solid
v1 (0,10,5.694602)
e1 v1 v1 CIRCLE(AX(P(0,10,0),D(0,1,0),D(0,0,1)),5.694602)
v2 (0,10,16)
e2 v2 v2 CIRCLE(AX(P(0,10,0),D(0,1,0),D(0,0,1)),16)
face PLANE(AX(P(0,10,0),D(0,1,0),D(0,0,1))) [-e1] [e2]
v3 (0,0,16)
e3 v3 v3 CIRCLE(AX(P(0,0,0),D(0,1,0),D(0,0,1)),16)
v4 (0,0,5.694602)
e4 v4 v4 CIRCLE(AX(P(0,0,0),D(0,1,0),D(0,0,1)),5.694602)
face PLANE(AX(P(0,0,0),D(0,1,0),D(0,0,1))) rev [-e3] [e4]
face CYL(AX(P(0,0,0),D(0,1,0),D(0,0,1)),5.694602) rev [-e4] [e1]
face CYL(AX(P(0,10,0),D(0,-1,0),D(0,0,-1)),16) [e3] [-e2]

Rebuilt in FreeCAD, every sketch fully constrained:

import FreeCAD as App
import Part
import Sketcher
Q = App.Units.Quantity

doc = App.newDocument("Part")
body = doc.addObject("PartDesign::Body", "Body")

sketch1 = doc.addObject("Sketcher::SketchObject", "Sketch")
body.addObject(sketch1)
sketch1.AttachmentSupport = (doc.XZ_Plane, [""])
sketch1.MapMode = "FlatFace"
sketch1.addGeometry(Part.Circle(App.Vector(0, 0, 0), App.Vector(0, 0, 1), 16), False)
sketch1.addConstraint([
    Sketcher.Constraint("Coincident", 0, 3, -1, 1),
    Sketcher.Constraint("Diameter", 0, Q("32 mm")),
])
pad1 = doc.addObject("PartDesign::Pad", "Pad")
body.addObject(pad1)
pad1.Profile = sketch1
pad1.Length = 10
pad1.Reversed = True

sketch2 = doc.addObject("Sketcher::SketchObject", "Sketch001")
body.addObject(sketch2)
sketch2.AttachmentSupport = (doc.XZ_Plane, [""])
sketch2.MapMode = "FlatFace"
sketch2.AttachmentOffset = App.Placement(App.Vector(0, 0, -10), App.Rotation())
sketch2.addGeometry(Part.Circle(App.Vector(0, 0, 0), App.Vector(0, 0, 1), 6), False)
sketch2.addConstraint([
    Sketcher.Constraint("Coincident", 0, 3, -1, 1),
    Sketcher.Constraint("Diameter", 0, Q("11.389205 mm")),
])
pocket1 = doc.addObject("PartDesign::Pocket", "Pocket")
body.addObject(pocket1)
pocket1.Profile = sketch2
pocket1.Type = "ThroughAll"
pocket1.Reversed = True

doc.recompute()
